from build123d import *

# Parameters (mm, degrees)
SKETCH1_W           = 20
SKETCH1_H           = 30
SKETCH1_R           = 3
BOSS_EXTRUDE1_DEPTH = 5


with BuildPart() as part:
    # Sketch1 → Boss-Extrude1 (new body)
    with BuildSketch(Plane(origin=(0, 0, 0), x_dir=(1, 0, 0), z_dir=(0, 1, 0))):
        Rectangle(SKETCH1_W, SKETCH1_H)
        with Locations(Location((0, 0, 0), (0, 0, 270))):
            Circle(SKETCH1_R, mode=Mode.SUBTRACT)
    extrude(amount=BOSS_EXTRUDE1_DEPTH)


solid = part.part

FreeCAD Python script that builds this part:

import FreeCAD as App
import Part
import Sketcher

doc = App.newDocument("Part")
body = doc.addObject("PartDesign::Body", "Body")

# Sketch on XZ plane
sketch1 = body.newObject("Sketcher::SketchObject", "Sketch")
sketch1.AttachmentSupport = (doc.getObject("XZ_Plane"), [""])
sketch1.MapMode = "FlatFace"
sketch1.addGeometry(Part.LineSegment(App.Vector(-10, -15, 0), App.Vector(-10, 15, 0)), False)
sketch1.addGeometry(Part.LineSegment(App.Vector(-10, 15, 0), App.Vector(10, 15, 0)), False)
sketch1.addGeometry(Part.LineSegment(App.Vector(10, 15, 0), App.Vector(10, -15, 0)), False)
sketch1.addGeometry(Part.LineSegment(App.Vector(10, -15, 0), App.Vector(-10, -15, 0)), False)
sketch1.addGeometry(Part.Circle(App.Vector(0, 0, 0), App.Vector(0, 0, 1), 3), False)
sketch1.addConstraint(Sketcher.Constraint("Coincident", 0, 2, 1, 1))
sketch1.addConstraint(Sketcher.Constraint("Coincident", 1, 2, 2, 1))
sketch1.addConstraint(Sketcher.Constraint("Coincident", 2, 2, 3, 1))
sketch1.addConstraint(Sketcher.Constraint("Coincident", 3, 2, 0, 1))
sketch1.addConstraint(Sketcher.Constraint("Vertical", 0))
sketch1.addConstraint(Sketcher.Constraint("Horizontal", 1))
sketch1.addConstraint(Sketcher.Constraint("Vertical", 2))
sketch1.addConstraint(Sketcher.Constraint("Horizontal", 3))
sketch1.addConstraint(Sketcher.Constraint("Coincident", 4, 3, -1, 1))
sketch1.addConstraint(Sketcher.Constraint("Symmetric", 0, 2, 2, 2, -1, 1))
sketch1.addConstraint(Sketcher.Constraint("Diameter", 4, 6.0))
sketch1.addConstraint(Sketcher.Constraint("DistanceX", 1, 1, 1, 2, 20.0))
sketch1.addConstraint(Sketcher.Constraint("DistanceY", 0, 1, 0, 2, 30.0))
pad1 = body.newObject("PartDesign::Pad", "Pad")
pad1.Profile = sketch1
pad1.Length = 5
pad1.Reversed = True

doc.recompute()
